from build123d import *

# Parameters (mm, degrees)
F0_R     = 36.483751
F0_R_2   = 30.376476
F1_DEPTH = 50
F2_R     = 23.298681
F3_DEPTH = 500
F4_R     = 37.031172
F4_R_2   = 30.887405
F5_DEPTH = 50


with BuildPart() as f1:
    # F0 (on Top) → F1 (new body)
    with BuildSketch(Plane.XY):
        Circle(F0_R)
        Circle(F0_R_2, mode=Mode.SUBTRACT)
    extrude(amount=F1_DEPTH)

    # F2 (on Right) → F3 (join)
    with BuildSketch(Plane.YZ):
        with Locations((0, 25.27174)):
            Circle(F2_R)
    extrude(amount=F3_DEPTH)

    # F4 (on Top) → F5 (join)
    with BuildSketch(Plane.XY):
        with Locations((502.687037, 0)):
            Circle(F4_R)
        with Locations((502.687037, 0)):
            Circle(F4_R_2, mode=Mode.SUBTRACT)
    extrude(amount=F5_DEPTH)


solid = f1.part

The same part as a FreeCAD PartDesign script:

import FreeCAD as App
import Part
import Sketcher

V = App.Vector
Q = App.Units.Quantity

doc = App.newDocument("Part")
body = doc.addObject("PartDesign::Body", "Body")

# Sketch on XY plane
sketch1 = doc.addObject("Sketcher::SketchObject", "Sketch")
body.addObject(sketch1)
sketch1.AttachmentSupport = (doc.XY_Plane, [""])
sketch1.MapMode = "FlatFace"
sketch1.addGeometry(Part.Circle(V(0, 0, 0), V(0, 0, 1), 36.483751), False)
sketch1.addGeometry(Part.Circle(V(0, 0, 0), V(0, 0, 1), 30.376476), False)
sketch1.addConstraint(Sketcher.Constraint("Coincident", 0, 3, -1, 1))
sketch1.addConstraint(Sketcher.Constraint("Coincident", 1, 3, -1, 1))
sketch1.addConstraint(Sketcher.Constraint("Diameter", 0, Q("72.967502 mm")))
sketch1.addConstraint(Sketcher.Constraint("Diameter", 1, Q("60.752952 mm")))
pad1 = doc.addObject("PartDesign::Pad", "Pad")
body.addObject(pad1)
pad1.Profile = sketch1
pad1.Length = 50

# Sketch on YZ plane
sketch2 = doc.addObject("Sketcher::SketchObject", "Sketch001")
body.addObject(sketch2)
sketch2.AttachmentSupport = (doc.YZ_Plane, [""])
sketch2.MapMode = "FlatFace"
sketch2.addGeometry(Part.Circle(V(0, 25.27174, 0), V(0, 0, 1), 23.298681), False)
sketch2.addConstraint(Sketcher.Constraint("PointOnObject", 0, 3, -2))
sketch2.addConstraint(Sketcher.Constraint("Diameter", 0, Q("46.597362 mm")))
sketch2.addConstraint(Sketcher.Constraint("DistanceY", -1, 1, 0, 3, Q("25.27174 mm")))
pad2 = doc.addObject("PartDesign::Pad", "Pad001")
body.addObject(pad2)
pad2.Profile = sketch2
pad2.Length = 500

# Sketch on XY plane
sketch3 = doc.addObject("Sketcher::SketchObject", "Sketch002")
body.addObject(sketch3)
sketch3.AttachmentSupport = (doc.XY_Plane, [""])
sketch3.MapMode = "FlatFace"
sketch3.addGeometry(Part.Circle(V(502.687037, 0, 0), V(0, 0, 1), 37.031172), False)
sketch3.addGeometry(Part.Circle(V(502.687037, 0, 0), V(0, 0, 1), 30.887405), False)
sketch3.addConstraint(Sketcher.Constraint("Coincident", 1, 3, 0, 3))
sketch3.addConstraint(Sketcher.Constraint("PointOnObject", 0, 3, -1))
sketch3.addConstraint(Sketcher.Constraint("Diameter", 1, Q("61.77481 mm")))
sketch3.addConstraint(Sketcher.Constraint("Diameter", 0, Q("74.062344 mm")))
sketch3.addConstraint(Sketcher.Constraint("DistanceX", -1, 1, 0, 3, Q("502.687037 mm")))
pad3 = doc.addObject("PartDesign::Pad", "Pad002")
body.addObject(pad3)
pad3.Profile = sketch3
pad3.Length = 50

doc.recompute()
